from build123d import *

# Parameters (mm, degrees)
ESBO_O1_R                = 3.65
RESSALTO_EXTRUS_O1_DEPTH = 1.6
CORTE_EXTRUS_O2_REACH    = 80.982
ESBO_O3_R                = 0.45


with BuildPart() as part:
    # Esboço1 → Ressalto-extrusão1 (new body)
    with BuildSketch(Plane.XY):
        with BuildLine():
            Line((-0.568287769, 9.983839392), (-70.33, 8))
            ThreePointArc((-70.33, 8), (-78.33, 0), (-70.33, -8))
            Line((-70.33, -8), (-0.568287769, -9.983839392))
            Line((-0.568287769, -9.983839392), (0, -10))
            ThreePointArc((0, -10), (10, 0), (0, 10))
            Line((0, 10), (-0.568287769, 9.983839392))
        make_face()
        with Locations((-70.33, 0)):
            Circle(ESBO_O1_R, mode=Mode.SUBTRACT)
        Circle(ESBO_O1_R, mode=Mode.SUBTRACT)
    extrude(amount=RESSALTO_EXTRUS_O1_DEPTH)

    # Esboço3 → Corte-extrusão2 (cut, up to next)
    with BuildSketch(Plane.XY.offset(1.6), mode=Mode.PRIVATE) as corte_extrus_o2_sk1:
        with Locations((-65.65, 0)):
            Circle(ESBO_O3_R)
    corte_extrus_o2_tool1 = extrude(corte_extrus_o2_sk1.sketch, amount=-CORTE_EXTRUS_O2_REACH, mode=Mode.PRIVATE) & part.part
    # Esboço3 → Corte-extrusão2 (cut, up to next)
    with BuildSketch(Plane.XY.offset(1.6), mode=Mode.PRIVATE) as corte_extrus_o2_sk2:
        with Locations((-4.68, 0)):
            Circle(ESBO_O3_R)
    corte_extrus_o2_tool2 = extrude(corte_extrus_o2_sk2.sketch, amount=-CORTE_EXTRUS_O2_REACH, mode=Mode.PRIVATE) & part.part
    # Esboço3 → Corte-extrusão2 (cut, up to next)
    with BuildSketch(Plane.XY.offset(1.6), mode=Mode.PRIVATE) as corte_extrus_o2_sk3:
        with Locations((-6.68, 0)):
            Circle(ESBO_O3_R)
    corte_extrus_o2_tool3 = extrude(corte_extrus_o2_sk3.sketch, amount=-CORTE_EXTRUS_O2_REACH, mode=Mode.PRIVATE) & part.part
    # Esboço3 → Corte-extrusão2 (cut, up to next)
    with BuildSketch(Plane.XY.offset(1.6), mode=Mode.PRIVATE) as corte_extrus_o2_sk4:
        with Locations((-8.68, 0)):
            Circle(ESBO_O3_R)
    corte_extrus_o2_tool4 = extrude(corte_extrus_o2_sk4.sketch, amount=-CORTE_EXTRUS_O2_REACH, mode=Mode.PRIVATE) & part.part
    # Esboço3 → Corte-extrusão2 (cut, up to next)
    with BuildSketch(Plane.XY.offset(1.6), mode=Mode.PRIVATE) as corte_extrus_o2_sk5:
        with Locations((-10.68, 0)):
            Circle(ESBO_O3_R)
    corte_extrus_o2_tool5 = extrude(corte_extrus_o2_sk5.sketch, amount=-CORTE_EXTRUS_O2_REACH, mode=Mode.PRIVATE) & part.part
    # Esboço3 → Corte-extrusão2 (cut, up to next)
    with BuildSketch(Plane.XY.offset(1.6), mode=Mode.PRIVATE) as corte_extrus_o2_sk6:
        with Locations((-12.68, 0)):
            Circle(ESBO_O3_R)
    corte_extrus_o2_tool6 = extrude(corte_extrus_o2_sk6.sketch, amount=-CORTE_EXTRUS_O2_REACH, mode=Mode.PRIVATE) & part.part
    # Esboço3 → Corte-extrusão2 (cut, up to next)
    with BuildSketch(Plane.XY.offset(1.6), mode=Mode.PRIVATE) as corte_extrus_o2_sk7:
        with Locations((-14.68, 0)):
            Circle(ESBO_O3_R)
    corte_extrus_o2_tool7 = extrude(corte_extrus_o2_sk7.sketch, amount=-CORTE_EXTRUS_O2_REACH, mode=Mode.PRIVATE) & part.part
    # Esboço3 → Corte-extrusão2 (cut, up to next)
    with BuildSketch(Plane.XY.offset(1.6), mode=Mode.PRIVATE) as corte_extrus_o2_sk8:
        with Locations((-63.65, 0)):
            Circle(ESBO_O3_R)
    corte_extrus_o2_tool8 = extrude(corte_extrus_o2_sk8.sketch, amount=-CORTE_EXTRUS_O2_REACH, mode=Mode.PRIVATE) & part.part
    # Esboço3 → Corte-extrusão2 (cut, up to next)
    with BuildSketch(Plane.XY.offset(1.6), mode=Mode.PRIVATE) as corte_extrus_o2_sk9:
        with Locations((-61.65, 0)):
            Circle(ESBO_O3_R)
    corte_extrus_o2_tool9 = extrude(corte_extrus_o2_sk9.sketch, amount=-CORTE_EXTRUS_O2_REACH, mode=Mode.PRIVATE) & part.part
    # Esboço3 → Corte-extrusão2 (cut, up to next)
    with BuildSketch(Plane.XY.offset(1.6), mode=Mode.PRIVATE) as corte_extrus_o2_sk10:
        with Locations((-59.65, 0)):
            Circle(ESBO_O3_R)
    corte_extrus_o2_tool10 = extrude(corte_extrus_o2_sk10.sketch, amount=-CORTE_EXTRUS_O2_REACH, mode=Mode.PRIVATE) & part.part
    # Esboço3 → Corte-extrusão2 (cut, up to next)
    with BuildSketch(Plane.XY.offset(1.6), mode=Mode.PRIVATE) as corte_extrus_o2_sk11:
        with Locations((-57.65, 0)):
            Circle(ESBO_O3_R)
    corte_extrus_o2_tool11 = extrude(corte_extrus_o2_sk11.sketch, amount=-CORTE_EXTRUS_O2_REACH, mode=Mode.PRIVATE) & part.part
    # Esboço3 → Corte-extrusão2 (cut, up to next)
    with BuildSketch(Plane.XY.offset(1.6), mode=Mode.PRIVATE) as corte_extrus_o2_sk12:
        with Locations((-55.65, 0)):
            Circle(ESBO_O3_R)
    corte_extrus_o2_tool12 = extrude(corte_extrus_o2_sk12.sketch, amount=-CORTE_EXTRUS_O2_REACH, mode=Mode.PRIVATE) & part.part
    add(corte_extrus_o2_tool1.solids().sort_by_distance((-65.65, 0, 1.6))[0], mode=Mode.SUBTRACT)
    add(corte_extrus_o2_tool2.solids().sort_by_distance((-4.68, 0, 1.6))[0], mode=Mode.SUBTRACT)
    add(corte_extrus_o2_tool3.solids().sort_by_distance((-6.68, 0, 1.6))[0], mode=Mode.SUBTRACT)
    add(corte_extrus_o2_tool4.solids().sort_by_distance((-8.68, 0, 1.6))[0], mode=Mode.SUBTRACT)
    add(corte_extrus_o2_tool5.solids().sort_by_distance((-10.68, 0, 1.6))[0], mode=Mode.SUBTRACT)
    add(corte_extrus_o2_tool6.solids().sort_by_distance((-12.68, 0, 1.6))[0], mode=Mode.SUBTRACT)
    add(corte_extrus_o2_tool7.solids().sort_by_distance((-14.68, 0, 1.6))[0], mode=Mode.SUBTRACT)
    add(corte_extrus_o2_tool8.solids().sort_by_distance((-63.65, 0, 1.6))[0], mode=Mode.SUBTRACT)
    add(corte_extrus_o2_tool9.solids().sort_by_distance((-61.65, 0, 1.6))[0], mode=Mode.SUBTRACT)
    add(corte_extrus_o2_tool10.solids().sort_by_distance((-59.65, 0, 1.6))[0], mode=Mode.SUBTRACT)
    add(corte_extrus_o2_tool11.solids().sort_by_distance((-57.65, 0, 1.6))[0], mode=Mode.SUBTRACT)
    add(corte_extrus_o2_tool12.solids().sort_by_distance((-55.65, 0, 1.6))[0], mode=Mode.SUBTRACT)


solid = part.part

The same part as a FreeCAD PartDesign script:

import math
import FreeCAD as App
import Part
import Sketcher

doc = App.newDocument("Part")
body = doc.addObject("PartDesign::Body", "Body")

sketch1 = doc.addObject("Sketcher::SketchObject", "Sketch")
body.addObject(sketch1)
sketch1.AttachmentSupport = (doc.XY_Plane, [""])
sketch1.MapMode = "FlatFace"
sketch1.addGeometry([
    Part.LineSegment(App.Vector(-0.568288, 9.983839, 0), App.Vector(-70.33, 8, 0)),
    Part.ArcOfCircle(Part.Circle(App.Vector(-70.33, 0, 0), App.Vector(0, 0, 1), 8), math.radians(90), math.radians(270)),
    Part.LineSegment(App.Vector(-70.33, -8, 0), App.Vector(-0.568288, -9.983839, 0)),
    Part.LineSegment(App.Vector(-0.568288, -9.983839, 0), App.Vector(0, -10, 0)),
    Part.ArcOfCircle(Part.Circle(App.Vector(0, 0, 0), App.Vector(0, 0, 1), 10), math.radians(-90), math.radians(90)),
    Part.LineSegment(App.Vector(0, 10, 0), App.Vector(-0.568288, 9.983839, 0)),
    Part.Circle(App.Vector(-70.33, 0, 0), App.Vector(0, 0, 1), 3.65),
    Part.Circle(App.Vector(0, 0, 0), App.Vector(0, 0, 1), 3.65),
], False)
sketch1.addConstraint([
    Sketcher.Constraint("Coincident", 0, 2, 1, 1),
    Sketcher.Constraint("Coincident", 1, 2, 2, 1),
    Sketcher.Constraint("Coincident", 2, 2, 3, 1),
    Sketcher.Constraint("Coincident", 3, 2, 4, 1),
    Sketcher.Constraint("Coincident", 4, 2, 5, 1),
    Sketcher.Constraint("Coincident", 5, 2, 0, 1),
    Sketcher.Constraint("Coincident", 4, 3, -1, 1),
    Sketcher.Constraint("Coincident", 7, 3, -1, 1),
    Sketcher.Constraint("Coincident", 6, 3, 1, 3),
    Sketcher.Constraint("Equal", 6, 7),
    Sketcher.Constraint("Symmetric", 0, 2, 1, 2, -1),
    Sketcher.Constraint("Symmetric", 2, 2, 5, 2, -1),
    Sketcher.Constraint("PointOnObject", 3, 2, -2),
    Sketcher.Constraint("PointOnObject", 4, 2, -2),
    Sketcher.Constraint("Parallel", 2, 3),
    Sketcher.Constraint("Vertical", 6, 3, 0, 2),
    Sketcher.Constraint("Radius", 1, 8.0),
    Sketcher.Constraint("Radius", 4, 10.0),
    Sketcher.Constraint("Diameter", 6, 7.3),
    Sketcher.Constraint("DistanceX", 1, 3, -1, 1, 70.33),
    Sketcher.Constraint("DistanceY", 2, 2, -1, 1, 9.983839),
])
pad1 = doc.addObject("PartDesign::Pad", "Pad")
body.addObject(pad1)
pad1.Profile = sketch1
pad1.Length = 1.6

sketch2 = doc.addObject("Sketcher::SketchObject", "Sketch001")
body.addObject(sketch2)
sketch2.AttachmentSupport = (doc.XY_Plane, [""])
sketch2.MapMode = "FlatFace"
sketch2.AttachmentOffset = App.Placement(App.Vector(0, 0, 1.6), App.Rotation())
sketch2.addGeometry(Part.Circle(App.Vector(-65.65, 0, 0), App.Vector(0, 0, 1), 0.45), False)
sketch2.addConstraint([
    Sketcher.Constraint("PointOnObject", 0, 3, -1),
    Sketcher.Constraint("Diameter", 0, 0.9),
    Sketcher.Constraint("DistanceX", 0, 3, -1, 1, 65.65),
])
pocket1 = doc.addObject("PartDesign::Pocket", "Pocket")
body.addObject(pocket1)
pocket1.Profile = sketch2
pocket1.Type = "UpToFirst"

sketch3 = doc.addObject("Sketcher::SketchObject", "Sketch002")
body.addObject(sketch3)
sketch3.AttachmentSupport = (doc.XY_Plane, [""])
sketch3.MapMode = "FlatFace"
sketch3.AttachmentOffset = App.Placement(App.Vector(0, 0, 1.6), App.Rotation())
sketch3.addGeometry(Part.Circle(App.Vector(-4.68, 0, 0), App.Vector(0, 0, 1), 0.45), False)
sketch3.addConstraint([
    Sketcher.Constraint("PointOnObject", 0, 3, -1),
    Sketcher.Constraint("Diameter", 0, 0.9),
    Sketcher.Constraint("DistanceX", 0, 3, -1, 1, 4.68),
])
pocket2 = doc.addObject("PartDesign::Pocket", "Pocket001")
body.addObject(pocket2)
pocket2.Profile = sketch3
pocket2.Type = "UpToFirst"

sketch4 = doc.addObject("Sketcher::SketchObject", "Sketch003")
body.addObject(sketch4)
sketch4.AttachmentSupport = (doc.XY_Plane, [""])
sketch4.MapMode = "FlatFace"
sketch4.AttachmentOffset = App.Placement(App.Vector(0, 0, 1.6), App.Rotation())
sketch4.addGeometry(Part.Circle(App.Vector(-6.68, 0, 0), App.Vector(0, 0, 1), 0.45), False)
sketch4.addConstraint([
    Sketcher.Constraint("PointOnObject", 0, 3, -1),
    Sketcher.Constraint("Diameter", 0, 0.9),
    Sketcher.Constraint("DistanceX", 0, 3, -1, 1, 6.68),
])
pocket3 = doc.addObject("PartDesign::Pocket", "Pocket002")
body.addObject(pocket3)
pocket3.Profile = sketch4
pocket3.Type = "UpToFirst"

sketch5 = doc.addObject("Sketcher::SketchObject", "Sketch004")
body.addObject(sketch5)
sketch5.AttachmentSupport = (doc.XY_Plane, [""])
sketch5.MapMode = "FlatFace"
sketch5.AttachmentOffset = App.Placement(App.Vector(0, 0, 1.6), App.Rotation())
sketch5.addGeometry(Part.Circle(App.Vector(-8.68, 0, 0), App.Vector(0, 0, 1), 0.45), False)
sketch5.addConstraint([
    Sketcher.Constraint("PointOnObject", 0, 3, -1),
    Sketcher.Constraint("Diameter", 0, 0.9),
    Sketcher.Constraint("DistanceX", 0, 3, -1, 1, 8.68),
])
pocket4 = doc.addObject("PartDesign::Pocket", "Pocket003")
body.addObject(pocket4)
pocket4.Profile = sketch5
pocket4.Type = "UpToFirst"

sketch6 = doc.addObject("Sketcher::SketchObject", "Sketch005")
body.addObject(sketch6)
sketch6.AttachmentSupport = (doc.XY_Plane, [""])
sketch6.MapMode = "FlatFace"
sketch6.AttachmentOffset = App.Placement(App.Vector(0, 0, 1.6), App.Rotation())
sketch6.addGeometry(Part.Circle(App.Vector(-10.68, 0, 0), App.Vector(0, 0, 1), 0.45), False)
sketch6.addConstraint([
    Sketcher.Constraint("PointOnObject", 0, 3, -1),
    Sketcher.Constraint("Diameter", 0, 0.9),
    Sketcher.Constraint("DistanceX", 0, 3, -1, 1, 10.68),
])
pocket5 = doc.addObject("PartDesign::Pocket", "Pocket004")
body.addObject(pocket5)
pocket5.Profile = sketch6
pocket5.Type = "UpToFirst"

sketch7 = doc.addObject("Sketcher::SketchObject", "Sketch006")
body.addObject(sketch7)
sketch7.AttachmentSupport = (doc.XY_Plane, [""])
sketch7.MapMode = "FlatFace"
sketch7.AttachmentOffset = App.Placement(App.Vector(0, 0, 1.6), App.Rotation())
sketch7.addGeometry(Part.Circle(App.Vector(-12.68, 0, 0), App.Vector(0, 0, 1), 0.45), False)
sketch7.addConstraint([
    Sketcher.Constraint("PointOnObject", 0, 3, -1),
    Sketcher.Constraint("Diameter", 0, 0.9),
    Sketcher.Constraint("DistanceX", 0, 3, -1, 1, 12.68),
])
pocket6 = doc.addObject("PartDesign::Pocket", "Pocket005")
body.addObject(pocket6)
pocket6.Profile = sketch7
pocket6.Type = "UpToFirst"

sketch8 = doc.addObject("Sketcher::SketchObject", "Sketch007")
body.addObject(sketch8)
sketch8.AttachmentSupport = (doc.XY_Plane, [""])
sketch8.MapMode = "FlatFace"
sketch8.AttachmentOffset = App.Placement(App.Vector(0, 0, 1.6), App.Rotation())
sketch8.addGeometry(Part.Circle(App.Vector(-14.68, 0, 0), App.Vector(0, 0, 1), 0.45), False)
sketch8.addConstraint([
    Sketcher.Constraint("PointOnObject", 0, 3, -1),
    Sketcher.Constraint("Diameter", 0, 0.9),
    Sketcher.Constraint("DistanceX", 0, 3, -1, 1, 14.68),
])
pocket7 = doc.addObject("PartDesign::Pocket", "Pocket006")
body.addObject(pocket7)
pocket7.Profile = sketch8
pocket7.Type = "UpToFirst"

sketch9 = doc.addObject("Sketcher::SketchObject", "Sketch008")
body.addObject(sketch9)
sketch9.AttachmentSupport = (doc.XY_Plane, [""])
sketch9.MapMode = "FlatFace"
sketch9.AttachmentOffset = App.Placement(App.Vector(0, 0, 1.6), App.Rotation())
sketch9.addGeometry(Part.Circle(App.Vector(-63.65, 0, 0), App.Vector(0, 0, 1), 0.45), False)
sketch9.addConstraint([
    Sketcher.Constraint("PointOnObject", 0, 3, -1),
    Sketcher.Constraint("Diameter", 0, 0.9),
    Sketcher.Constraint("DistanceX", 0, 3, -1, 1, 63.65),
])
pocket8 = doc.addObject("PartDesign::Pocket", "Pocket007")
body.addObject(pocket8)
pocket8.Profile = sketch9
pocket8.Type = "UpToFirst"

sketch10 = doc.addObject("Sketcher::SketchObject", "Sketch009")
body.addObject(sketch10)
sketch10.AttachmentSupport = (doc.XY_Plane, [""])
sketch10.MapMode = "FlatFace"
sketch10.AttachmentOffset = App.Placement(App.Vector(0, 0, 1.6), App.Rotation())
sketch10.addGeometry(Part.Circle(App.Vector(-61.65, 0, 0), App.Vector(0, 0, 1), 0.45), False)
sketch10.addConstraint([
    Sketcher.Constraint("PointOnObject", 0, 3, -1),
    Sketcher.Constraint("Diameter", 0, 0.9),
    Sketcher.Constraint("DistanceX", 0, 3, -1, 1, 61.65),
])
pocket9 = doc.addObject("PartDesign::Pocket", "Pocket008")
body.addObject(pocket9)
pocket9.Profile = sketch10
pocket9.Type = "UpToFirst"

sketch11 = doc.addObject("Sketcher::SketchObject", "Sketch010")
body.addObject(sketch11)
sketch11.AttachmentSupport = (doc.XY_Plane, [""])
sketch11.MapMode = "FlatFace"
sketch11.AttachmentOffset = App.Placement(App.Vector(0, 0, 1.6), App.Rotation())
sketch11.addGeometry(Part.Circle(App.Vector(-59.65, 0, 0), App.Vector(0, 0, 1), 0.45), False)
sketch11.addConstraint([
    Sketcher.Constraint("PointOnObject", 0, 3, -1),
    Sketcher.Constraint("Diameter", 0, 0.9),
    Sketcher.Constraint("DistanceX", 0, 3, -1, 1, 59.65),
])
pocket10 = doc.addObject("PartDesign::Pocket", "Pocket009")
body.addObject(pocket10)
pocket10.Profile = sketch11
pocket10.Type = "UpToFirst"

sketch12 = doc.addObject("Sketcher::SketchObject", "Sketch011")
body.addObject(sketch12)
sketch12.AttachmentSupport = (doc.XY_Plane, [""])
sketch12.MapMode = "FlatFace"
sketch12.AttachmentOffset = App.Placement(App.Vector(0, 0, 1.6), App.Rotation())
sketch12.addGeometry(Part.Circle(App.Vector(-57.65, 0, 0), App.Vector(0, 0, 1), 0.45), False)
sketch12.addConstraint([
    Sketcher.Constraint("PointOnObject", 0, 3, -1),
    Sketcher.Constraint("Diameter", 0, 0.9),
    Sketcher.Constraint("DistanceX", 0, 3, -1, 1, 57.65),
])
pocket11 = doc.addObject("PartDesign::Pocket", "Pocket010")
body.addObject(pocket11)
pocket11.Profile = sketch12
pocket11.Type = "UpToFirst"

sketch13 = doc.addObject("Sketcher::SketchObject", "Sketch012")
body.addObject(sketch13)
sketch13.AttachmentSupport = (doc.XY_Plane, [""])
sketch13.MapMode = "FlatFace"
sketch13.AttachmentOffset = App.Placement(App.Vector(0, 0, 1.6), App.Rotation())
sketch13.addGeometry(Part.Circle(App.Vector(-55.65, 0, 0), App.Vector(0, 0, 1), 0.45), False)
sketch13.addConstraint([
    Sketcher.Constraint("PointOnObject", 0, 3, -1),
    Sketcher.Constraint("Diameter", 0, 0.9),
    Sketcher.Constraint("DistanceX", 0, 3, -1, 1, 55.65),
])
pocket12 = doc.addObject("PartDesign::Pocket", "Pocket011")
body.addObject(pocket12)
pocket12.Profile = sketch13
pocket12.Type = "UpToFirst"

doc.recompute()
